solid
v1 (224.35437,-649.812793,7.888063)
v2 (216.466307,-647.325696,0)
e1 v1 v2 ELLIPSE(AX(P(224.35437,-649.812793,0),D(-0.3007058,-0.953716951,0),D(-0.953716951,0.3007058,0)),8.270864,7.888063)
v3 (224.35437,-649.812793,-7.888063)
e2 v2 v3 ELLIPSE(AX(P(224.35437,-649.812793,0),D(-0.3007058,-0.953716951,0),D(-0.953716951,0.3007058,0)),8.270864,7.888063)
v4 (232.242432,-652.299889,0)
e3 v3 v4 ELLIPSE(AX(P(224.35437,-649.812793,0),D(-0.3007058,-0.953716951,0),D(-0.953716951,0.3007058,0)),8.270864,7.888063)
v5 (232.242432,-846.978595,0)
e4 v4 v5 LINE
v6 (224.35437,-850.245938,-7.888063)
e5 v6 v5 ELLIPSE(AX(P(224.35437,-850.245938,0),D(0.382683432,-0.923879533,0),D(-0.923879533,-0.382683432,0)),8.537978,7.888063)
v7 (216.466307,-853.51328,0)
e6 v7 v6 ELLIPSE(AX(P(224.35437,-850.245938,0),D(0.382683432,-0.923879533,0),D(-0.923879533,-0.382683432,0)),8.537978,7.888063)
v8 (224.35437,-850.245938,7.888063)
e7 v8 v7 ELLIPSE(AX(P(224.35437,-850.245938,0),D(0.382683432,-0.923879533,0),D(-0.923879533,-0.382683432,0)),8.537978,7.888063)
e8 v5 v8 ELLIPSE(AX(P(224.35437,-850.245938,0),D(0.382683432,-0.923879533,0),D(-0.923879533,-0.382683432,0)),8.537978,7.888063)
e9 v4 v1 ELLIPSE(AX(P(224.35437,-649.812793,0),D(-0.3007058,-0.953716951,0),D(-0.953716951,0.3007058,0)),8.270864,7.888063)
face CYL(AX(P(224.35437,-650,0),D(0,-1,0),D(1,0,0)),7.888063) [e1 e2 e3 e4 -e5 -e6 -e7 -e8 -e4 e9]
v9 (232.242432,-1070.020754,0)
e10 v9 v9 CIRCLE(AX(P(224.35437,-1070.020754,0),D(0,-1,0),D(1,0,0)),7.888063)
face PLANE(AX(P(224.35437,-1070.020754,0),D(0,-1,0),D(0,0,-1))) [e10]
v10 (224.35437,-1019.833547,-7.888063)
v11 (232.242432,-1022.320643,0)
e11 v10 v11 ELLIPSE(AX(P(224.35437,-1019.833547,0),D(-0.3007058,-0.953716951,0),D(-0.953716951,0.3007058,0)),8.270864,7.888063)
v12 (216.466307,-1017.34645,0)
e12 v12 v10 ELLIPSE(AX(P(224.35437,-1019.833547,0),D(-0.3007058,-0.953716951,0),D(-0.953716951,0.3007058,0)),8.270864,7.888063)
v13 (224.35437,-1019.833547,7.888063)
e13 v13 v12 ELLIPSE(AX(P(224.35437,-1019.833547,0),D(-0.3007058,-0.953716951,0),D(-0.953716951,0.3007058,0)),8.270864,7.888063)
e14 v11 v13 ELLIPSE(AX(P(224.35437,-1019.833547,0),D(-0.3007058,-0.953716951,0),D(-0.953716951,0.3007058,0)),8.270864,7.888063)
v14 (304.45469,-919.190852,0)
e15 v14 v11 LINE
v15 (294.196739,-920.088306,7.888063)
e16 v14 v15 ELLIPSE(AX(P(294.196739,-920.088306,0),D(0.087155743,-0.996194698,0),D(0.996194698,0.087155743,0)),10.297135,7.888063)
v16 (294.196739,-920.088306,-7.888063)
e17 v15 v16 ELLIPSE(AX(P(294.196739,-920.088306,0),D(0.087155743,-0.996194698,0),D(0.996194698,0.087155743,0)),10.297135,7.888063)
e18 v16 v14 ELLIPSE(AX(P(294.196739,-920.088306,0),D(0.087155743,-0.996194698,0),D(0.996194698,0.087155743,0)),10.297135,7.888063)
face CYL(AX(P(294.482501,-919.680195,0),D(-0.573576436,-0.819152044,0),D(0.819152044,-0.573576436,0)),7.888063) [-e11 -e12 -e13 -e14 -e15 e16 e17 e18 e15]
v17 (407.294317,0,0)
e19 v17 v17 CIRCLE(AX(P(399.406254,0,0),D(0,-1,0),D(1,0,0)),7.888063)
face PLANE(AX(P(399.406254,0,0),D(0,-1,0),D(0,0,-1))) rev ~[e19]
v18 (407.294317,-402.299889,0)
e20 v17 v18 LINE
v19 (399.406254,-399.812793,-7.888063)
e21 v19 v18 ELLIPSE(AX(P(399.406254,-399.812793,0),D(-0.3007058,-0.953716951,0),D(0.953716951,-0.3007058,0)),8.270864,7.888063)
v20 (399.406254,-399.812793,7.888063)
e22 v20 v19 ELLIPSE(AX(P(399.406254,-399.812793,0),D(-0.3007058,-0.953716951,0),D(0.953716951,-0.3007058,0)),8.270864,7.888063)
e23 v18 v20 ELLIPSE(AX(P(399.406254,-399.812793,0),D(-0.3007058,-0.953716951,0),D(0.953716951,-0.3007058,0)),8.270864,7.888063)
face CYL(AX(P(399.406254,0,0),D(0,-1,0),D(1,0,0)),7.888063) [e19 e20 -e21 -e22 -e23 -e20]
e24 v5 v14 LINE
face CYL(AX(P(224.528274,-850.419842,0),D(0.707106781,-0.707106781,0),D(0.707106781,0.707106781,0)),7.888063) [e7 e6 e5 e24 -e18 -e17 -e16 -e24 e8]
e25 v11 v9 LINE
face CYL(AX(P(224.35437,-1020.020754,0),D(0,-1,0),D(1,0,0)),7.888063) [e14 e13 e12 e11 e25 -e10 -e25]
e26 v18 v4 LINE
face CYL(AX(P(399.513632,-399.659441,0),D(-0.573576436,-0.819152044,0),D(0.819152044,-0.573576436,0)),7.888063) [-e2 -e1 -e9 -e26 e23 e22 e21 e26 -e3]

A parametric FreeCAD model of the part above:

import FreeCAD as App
import Part
import Sketcher
from FreeCAD import Vector
Q = App.Units.Quantity

doc = App.newDocument("Part")
body = doc.addObject("PartDesign::Body", "Body")

# Sketch on XZ plane
sketch1 = body.newObject("Sketcher::SketchObject", "Sketch")
sketch1.AttachmentSupport = (doc.getObject("XZ_Plane"), [""])
sketch1.MapMode = "FlatFace"
sketch1.addGeometry(Part.Circle(Vector(399.406254, 0, 0), Vector(0, 0, 1), 7.888063), False)
sketch1.addConstraint([
    Sketcher.Constraint("PointOnObject", 0, 3, -1),
    Sketcher.Constraint("Diameter", 0, 15.776125),
    Sketcher.Constraint("DistanceX", -1, 1, 0, 3, 399.406254),
])

# Sketch on XY plane
sketch2 = body.newObject("Sketcher::SketchObject", "Sketch001")
sketch2.AttachmentSupport = (doc.getObject("XY_Plane"), [""])
sketch2.MapMode = "FlatFace"
sketch2.addGeometry([
    Part.LineSegment(Vector(400, 0, 0), Vector(400, -400, 0)),  # 0
    Part.LineSegment(Vector(400, -400, 0), Vector(224.948115, -650, 0)),  # 1
    Part.LineSegment(Vector(224.948115, -650, 0), Vector(224.948115, -850, 0)),  # 2
    Part.LineSegment(Vector(224.948115, -850, 0), Vector(294.968869, -920.020754, 0)),  # 3
    Part.LineSegment(Vector(294.968869, -920.020754, 0), Vector(224.948115, -1020.020754, 0)),  # 4
    Part.LineSegment(Vector(224.948115, -1020.020754, 0), Vector(224.948115, -1070.020754, 0)),  # 5
], False)
sketch2.addConstraint([
    Sketcher.Constraint("Coincident", 0, 2, 1, 1),
    Sketcher.Constraint("Coincident", 1, 2, 2, 1),
    Sketcher.Constraint("Coincident", 2, 2, 3, 1),
    Sketcher.Constraint("Coincident", 3, 2, 4, 1),
    Sketcher.Constraint("Coincident", 4, 2, 5, 1),
    Sketcher.Constraint("Vertical", 0),
    Sketcher.Constraint("Vertical", 2),
    Sketcher.Constraint("Vertical", 5),
    Sketcher.Constraint("PointOnObject", 0, 1, -1),
    Sketcher.Constraint("Parallel", 1, 4),
    Sketcher.Constraint("Vertical", 2, 2, 4, 2),
    Sketcher.Constraint("DistanceY", 0, 2, 0, 1, 400.0),
    Sketcher.Constraint("DistanceY", 2, 2, 2, 1, 200.0),
    Sketcher.Constraint("DistanceY", 5, 2, 5, 1, 50.0),
    Sketcher.Constraint("Angle", 1, Q("-125 deg")),
    Sketcher.Constraint("Angle", 3, Q("-45 deg")),
    Sketcher.Constraint("DistanceX", -1, 1, 0, 1, 400.0),
    Sketcher.Constraint("DistanceY", 1, 2, -1, 1, 650.0),
    Sketcher.Constraint("DistanceY", 4, 2, 3, 2, 100.0),
])
doc.recompute()

additivepipe = body.newObject("PartDesign::AdditivePipe", "AdditivePipe")
additivepipe.Profile = sketch1
additivepipe.Spine = (sketch2, ["Edge1", "Edge2", "Edge3", "Edge4", "Edge5", "Edge6"])
additivepipe.Transition = "Right corner"

doc.recompute()
